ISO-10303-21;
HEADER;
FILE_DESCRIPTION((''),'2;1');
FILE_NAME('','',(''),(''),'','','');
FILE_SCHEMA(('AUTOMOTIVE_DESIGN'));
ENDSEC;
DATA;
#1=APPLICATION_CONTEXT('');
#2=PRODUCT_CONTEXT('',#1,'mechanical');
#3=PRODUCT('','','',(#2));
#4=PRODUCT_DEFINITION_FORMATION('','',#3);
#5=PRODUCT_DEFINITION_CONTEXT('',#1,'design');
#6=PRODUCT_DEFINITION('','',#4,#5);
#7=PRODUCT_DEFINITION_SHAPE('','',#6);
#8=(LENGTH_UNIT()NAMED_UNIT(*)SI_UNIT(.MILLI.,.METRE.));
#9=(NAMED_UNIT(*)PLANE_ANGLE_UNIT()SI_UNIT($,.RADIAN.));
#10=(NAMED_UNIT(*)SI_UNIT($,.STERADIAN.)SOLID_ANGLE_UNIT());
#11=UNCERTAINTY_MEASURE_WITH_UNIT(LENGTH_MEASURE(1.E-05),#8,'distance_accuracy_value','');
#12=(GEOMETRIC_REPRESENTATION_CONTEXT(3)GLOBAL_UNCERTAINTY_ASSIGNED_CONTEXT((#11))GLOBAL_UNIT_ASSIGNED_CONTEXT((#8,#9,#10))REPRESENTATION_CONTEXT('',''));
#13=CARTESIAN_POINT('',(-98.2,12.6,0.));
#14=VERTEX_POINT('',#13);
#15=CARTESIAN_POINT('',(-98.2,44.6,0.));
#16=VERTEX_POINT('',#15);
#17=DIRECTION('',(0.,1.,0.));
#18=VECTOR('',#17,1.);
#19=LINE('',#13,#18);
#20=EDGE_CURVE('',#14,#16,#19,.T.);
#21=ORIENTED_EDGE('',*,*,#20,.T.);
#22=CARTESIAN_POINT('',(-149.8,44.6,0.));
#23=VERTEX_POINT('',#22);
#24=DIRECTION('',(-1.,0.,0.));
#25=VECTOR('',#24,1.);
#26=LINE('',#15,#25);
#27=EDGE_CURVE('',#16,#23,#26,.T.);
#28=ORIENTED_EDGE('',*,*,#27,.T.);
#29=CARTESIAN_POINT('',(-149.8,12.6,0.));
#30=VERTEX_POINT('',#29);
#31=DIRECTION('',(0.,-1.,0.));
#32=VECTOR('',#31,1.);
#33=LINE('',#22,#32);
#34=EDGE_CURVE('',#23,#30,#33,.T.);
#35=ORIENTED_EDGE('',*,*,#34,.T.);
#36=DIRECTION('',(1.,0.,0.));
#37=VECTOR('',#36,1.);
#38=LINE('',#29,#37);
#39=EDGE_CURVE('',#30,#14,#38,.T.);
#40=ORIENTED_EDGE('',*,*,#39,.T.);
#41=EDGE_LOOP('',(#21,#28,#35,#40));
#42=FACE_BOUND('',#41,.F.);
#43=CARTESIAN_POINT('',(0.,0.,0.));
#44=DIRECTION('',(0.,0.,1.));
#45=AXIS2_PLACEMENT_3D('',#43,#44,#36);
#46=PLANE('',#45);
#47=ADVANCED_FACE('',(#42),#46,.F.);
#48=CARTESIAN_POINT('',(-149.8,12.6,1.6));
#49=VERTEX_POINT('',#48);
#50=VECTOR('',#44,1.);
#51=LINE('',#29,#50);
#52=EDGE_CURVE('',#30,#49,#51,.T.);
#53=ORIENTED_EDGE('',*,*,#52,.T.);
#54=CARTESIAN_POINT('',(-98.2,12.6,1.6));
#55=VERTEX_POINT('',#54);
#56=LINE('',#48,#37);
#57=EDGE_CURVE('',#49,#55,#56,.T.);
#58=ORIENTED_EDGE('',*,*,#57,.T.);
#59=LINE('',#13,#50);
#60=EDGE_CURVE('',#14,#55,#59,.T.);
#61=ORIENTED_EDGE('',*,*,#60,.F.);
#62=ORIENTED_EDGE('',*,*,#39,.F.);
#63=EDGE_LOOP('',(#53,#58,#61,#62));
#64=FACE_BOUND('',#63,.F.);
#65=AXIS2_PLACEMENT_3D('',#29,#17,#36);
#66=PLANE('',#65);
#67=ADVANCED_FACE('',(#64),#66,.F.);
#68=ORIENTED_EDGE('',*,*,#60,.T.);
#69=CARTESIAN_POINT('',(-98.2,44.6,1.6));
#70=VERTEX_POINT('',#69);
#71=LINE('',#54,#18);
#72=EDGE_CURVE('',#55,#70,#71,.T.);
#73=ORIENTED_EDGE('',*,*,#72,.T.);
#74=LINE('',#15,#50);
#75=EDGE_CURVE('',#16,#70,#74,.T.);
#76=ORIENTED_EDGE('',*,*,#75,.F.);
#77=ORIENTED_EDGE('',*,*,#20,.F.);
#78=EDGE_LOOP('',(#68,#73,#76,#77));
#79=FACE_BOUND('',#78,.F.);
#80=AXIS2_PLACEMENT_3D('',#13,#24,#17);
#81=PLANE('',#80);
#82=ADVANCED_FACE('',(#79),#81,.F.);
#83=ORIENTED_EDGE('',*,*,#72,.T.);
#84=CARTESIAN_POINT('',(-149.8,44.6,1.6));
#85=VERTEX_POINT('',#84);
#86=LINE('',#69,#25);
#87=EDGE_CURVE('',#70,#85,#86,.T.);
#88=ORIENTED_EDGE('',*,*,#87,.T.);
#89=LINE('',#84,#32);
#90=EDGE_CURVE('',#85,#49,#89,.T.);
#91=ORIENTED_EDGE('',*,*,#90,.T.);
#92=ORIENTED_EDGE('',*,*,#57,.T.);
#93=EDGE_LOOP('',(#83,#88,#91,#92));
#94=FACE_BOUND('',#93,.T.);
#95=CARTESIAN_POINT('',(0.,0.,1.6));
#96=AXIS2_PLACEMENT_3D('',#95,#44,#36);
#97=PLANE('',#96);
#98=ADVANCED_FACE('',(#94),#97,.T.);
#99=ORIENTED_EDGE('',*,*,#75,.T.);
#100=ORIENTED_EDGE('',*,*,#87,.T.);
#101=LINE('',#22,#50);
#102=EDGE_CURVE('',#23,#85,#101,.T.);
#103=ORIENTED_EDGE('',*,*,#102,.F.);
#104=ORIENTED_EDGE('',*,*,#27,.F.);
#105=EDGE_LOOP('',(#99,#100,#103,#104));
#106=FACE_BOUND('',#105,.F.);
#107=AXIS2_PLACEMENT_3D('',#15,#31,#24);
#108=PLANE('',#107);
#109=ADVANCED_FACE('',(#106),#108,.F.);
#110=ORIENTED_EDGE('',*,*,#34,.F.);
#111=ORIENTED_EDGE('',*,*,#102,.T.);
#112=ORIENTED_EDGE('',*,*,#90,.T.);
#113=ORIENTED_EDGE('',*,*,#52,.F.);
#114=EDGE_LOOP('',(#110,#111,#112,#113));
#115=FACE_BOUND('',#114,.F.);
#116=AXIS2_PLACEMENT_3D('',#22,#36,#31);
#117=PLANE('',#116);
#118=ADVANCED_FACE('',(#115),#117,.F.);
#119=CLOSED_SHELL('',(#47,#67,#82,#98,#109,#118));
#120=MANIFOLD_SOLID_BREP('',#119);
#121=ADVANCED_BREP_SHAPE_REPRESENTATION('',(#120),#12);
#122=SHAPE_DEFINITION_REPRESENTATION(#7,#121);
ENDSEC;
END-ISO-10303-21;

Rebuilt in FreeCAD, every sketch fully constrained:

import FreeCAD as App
import Part
import Sketcher
from FreeCAD import Vector

doc = App.newDocument("Part")
body = doc.addObject("PartDesign::Body", "Body")

sketch1 = doc.addObject("Sketcher::SketchObject", "Sketch")
body.addObject(sketch1)
sketch1.AttachmentSupport = (doc.XY_Plane, [""])
sketch1.MapMode = "FlatFace"
sketch1.addGeometry([
    Part.LineSegment(Vector(-98, 13, 0), Vector(-98, 45, 0)),
    Part.LineSegment(Vector(-98, 45, 0), Vector(-150, 45, 0)),
    Part.LineSegment(Vector(-150, 45, 0), Vector(-150, 13, 0)),
    Part.LineSegment(Vector(-150, 13, 0), Vector(-98, 13, 0)),
], False)
sketch1.addConstraint([
    Sketcher.Constraint("Coincident", 0, 2, 1, 1),
    Sketcher.Constraint("Coincident", 1, 2, 2, 1),
    Sketcher.Constraint("Coincident", 2, 2, 3, 1),
    Sketcher.Constraint("Coincident", 3, 2, 0, 1),
    Sketcher.Constraint("Vertical", 0),
    Sketcher.Constraint("Horizontal", 1),
    Sketcher.Constraint("Vertical", 2),
    Sketcher.Constraint("Horizontal", 3),
    Sketcher.Constraint("DistanceY", 0, 1, 0, 2, 32.0),
    Sketcher.Constraint("DistanceX", 1, 2, 1, 1, 51.6),
    Sketcher.Constraint("DistanceX", 0, 2, -1, 1, 98.2),
    Sketcher.Constraint("DistanceY", -1, 1, 0, 2, 44.6),
])
pad1 = doc.addObject("PartDesign::Pad", "Pad")
body.addObject(pad1)
pad1.Profile = sketch1
pad1.Length = 1.6

doc.recompute()
